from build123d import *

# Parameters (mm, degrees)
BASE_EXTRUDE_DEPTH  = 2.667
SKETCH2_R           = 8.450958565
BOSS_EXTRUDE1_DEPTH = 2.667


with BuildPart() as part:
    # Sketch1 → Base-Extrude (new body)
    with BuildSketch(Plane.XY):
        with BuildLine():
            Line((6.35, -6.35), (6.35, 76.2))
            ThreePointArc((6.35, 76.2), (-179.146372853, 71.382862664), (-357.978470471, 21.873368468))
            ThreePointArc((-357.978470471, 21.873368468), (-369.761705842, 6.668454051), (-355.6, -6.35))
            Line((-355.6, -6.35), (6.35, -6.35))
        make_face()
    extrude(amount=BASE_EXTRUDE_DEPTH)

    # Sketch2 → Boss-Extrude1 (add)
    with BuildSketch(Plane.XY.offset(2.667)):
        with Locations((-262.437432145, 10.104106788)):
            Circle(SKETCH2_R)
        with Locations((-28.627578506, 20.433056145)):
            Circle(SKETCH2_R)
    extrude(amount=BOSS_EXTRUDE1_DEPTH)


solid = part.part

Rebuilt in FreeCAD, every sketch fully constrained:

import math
import FreeCAD as App
import Part
import Sketcher
from FreeCAD import Vector
Q = App.Units.Quantity

doc = App.newDocument("Part")
body = doc.addObject("PartDesign::Body", "Body")

# Sketch on XY plane
sketch1 = doc.addObject("Sketcher::SketchObject", "Sketch")
body.addObject(sketch1)
sketch1.AttachmentSupport = (doc.XY_Plane, [""])
sketch1.MapMode = "FlatFace"
sketch1.addGeometry([
    Part.LineSegment(Vector(6, -6, 0), Vector(6, 76, 0)),
    Part.ArcOfCircle(Part.Circle(Vector(-67, -682, 0), Vector(0, 0, 1), 762), math.radians(84), math.radians(112)),
    Part.ArcOfCircle(Part.Circle(Vector(-356, 8, 0), Vector(0, 0, 1), 14), math.radians(100), math.radians(270)),
    Part.LineSegment(Vector(-356, -6, 0), Vector(6, -6, 0)),
], False)
sketch1.addConstraint([
    Sketcher.Constraint("Coincident", 0, 2, 1, 1),
    Sketcher.Constraint("Coincident", 1, 2, 2, 1),
    Sketcher.Constraint("Tangent", 2, 2, 3, 1),
    Sketcher.Constraint("Coincident", 3, 2, 0, 1),
    Sketcher.Constraint("Vertical", 0),
    Sketcher.Constraint("Horizontal", 3),
    Sketcher.Constraint("Radius", 1, Q("30 in")),
    Sketcher.Constraint("DistanceX", 2, 3, -1, 1, Q("14 in")),
    Sketcher.Constraint("DistanceY", -1, 1, 0, 2, Q("3 in")),
    Sketcher.Constraint("DistanceX", 3, 1, 3, 2, Q("14.25 in")),
    Sketcher.Constraint("DistanceY", 0, 1, 0, 2, Q("3.25 in")),
    Sketcher.Constraint("Radius", 2, 14.211905),
    Sketcher.Constraint("DistanceX", 1, 3, -1, 1, 66.76373),
])
pad1 = doc.addObject("PartDesign::Pad", "Pad")
body.addObject(pad1)
pad1.Profile = sketch1
pad1.Length = Q("0.105 in")

# Sketch on XY plane
sketch2 = doc.addObject("Sketcher::SketchObject", "Sketch001")
body.addObject(sketch2)
sketch2.AttachmentSupport = (doc.XY_Plane, [""])
sketch2.MapMode = "FlatFace"
sketch2.AttachmentOffset = App.Placement(Vector(0, 0, 0.105 * 25.4), App.Rotation())
sketch2.addGeometry([
    Part.Circle(Vector(-262, 10, 0), Vector(0, 0, 1), 8),
    Part.Circle(Vector(-29, 20, 0), Vector(0, 0, 1), 8),
], False)
sketch2.addConstraint([
    Sketcher.Constraint("Equal", 0, 1),
    Sketcher.Constraint("Diameter", 0, 16.901917),
    Sketcher.Constraint("DistanceX", 1, 3, -1, 1, 28.627579),
    Sketcher.Constraint("DistanceY", 0, 3, 1, 3, 10.328949),
    Sketcher.Constraint("DistanceX", 0, 3, -1, 1, 262.437432),
    Sketcher.Constraint("DistanceY", -1, 1, 0, 3, 10.104107),
])
pad2 = doc.addObject("PartDesign::Pad", "Pad001")
body.addObject(pad2)
pad2.Profile = sketch2
pad2.Length = Q("0.105 in")

doc.recompute()
